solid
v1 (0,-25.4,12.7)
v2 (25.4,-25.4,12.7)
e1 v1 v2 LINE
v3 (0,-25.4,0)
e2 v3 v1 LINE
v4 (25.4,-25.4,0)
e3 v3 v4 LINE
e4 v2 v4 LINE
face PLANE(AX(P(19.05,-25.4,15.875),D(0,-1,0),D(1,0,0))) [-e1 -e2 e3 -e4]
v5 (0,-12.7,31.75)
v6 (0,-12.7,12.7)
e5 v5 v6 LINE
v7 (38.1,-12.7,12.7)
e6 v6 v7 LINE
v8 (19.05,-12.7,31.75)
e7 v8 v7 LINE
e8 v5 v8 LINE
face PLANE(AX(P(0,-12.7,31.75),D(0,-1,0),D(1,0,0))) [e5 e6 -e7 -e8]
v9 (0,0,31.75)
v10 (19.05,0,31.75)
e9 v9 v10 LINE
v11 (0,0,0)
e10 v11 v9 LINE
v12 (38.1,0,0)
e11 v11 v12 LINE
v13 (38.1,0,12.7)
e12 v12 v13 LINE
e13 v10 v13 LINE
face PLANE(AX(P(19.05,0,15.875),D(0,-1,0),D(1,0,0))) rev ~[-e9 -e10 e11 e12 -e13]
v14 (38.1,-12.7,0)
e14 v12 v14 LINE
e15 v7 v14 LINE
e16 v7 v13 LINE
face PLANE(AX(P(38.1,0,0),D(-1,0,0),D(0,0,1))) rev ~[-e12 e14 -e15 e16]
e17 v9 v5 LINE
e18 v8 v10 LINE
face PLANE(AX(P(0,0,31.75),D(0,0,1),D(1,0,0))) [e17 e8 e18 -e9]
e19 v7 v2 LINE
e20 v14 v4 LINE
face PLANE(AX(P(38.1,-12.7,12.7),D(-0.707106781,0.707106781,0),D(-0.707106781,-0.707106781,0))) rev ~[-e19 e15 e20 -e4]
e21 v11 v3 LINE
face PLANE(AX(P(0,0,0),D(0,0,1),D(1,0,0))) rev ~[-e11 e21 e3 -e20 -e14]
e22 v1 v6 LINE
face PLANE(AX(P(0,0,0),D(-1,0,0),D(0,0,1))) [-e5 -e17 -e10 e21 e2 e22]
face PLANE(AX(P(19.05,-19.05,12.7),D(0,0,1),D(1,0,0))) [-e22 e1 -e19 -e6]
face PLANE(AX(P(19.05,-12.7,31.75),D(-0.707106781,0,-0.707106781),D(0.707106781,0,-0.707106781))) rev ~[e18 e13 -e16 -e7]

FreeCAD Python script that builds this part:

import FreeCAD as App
import Part
import Sketcher

V = App.Vector
Q = App.Units.Quantity


def add_polygon(sketch, points):
    """Adds a closed chain of lines whose ends are joined by coincident constraints."""
    first, n = sketch.GeometryCount, len(points)
    for a, b in zip(points, points[1:] + points[:1]):
        sketch.addGeometry(Part.LineSegment(App.Vector(*a, 0), App.Vector(*b, 0)), False)
    for i in range(n):
        sketch.addConstraint(Sketcher.Constraint("Coincident", first + i, 2, first + (i + 1) % n, 1))

doc = App.newDocument("Part")
body = doc.addObject("PartDesign::Body", "Body")

sketch1 = doc.addObject("Sketcher::SketchObject", "Sketch")
body.addObject(sketch1)
sketch1.AttachmentSupport = (doc.XZ_Plane, [""])
sketch1.MapMode = "FlatFace"
add_polygon(sketch1, [(0, 32), (0, 0), (38, 0), (38, 32)])
sketch1.addConstraint([
    Sketcher.Constraint("Vertical", 0),
    Sketcher.Constraint("Horizontal", 1),
    Sketcher.Constraint("Vertical", 2),
    Sketcher.Constraint("Horizontal", 3),
    Sketcher.Constraint("Coincident", 0, 2, -1, 1),
    Sketcher.Constraint("DistanceX", 1, 1, 1, 2, Q("1.5 in")),
    Sketcher.Constraint("DistanceY", 0, 2, 0, 1, Q("1.25 in")),
])
pad1 = doc.addObject("PartDesign::Pad", "Pad")
body.addObject(pad1)
pad1.Profile = sketch1
pad1.Length = Q("1 in")

sketch2 = doc.addObject("Sketcher::SketchObject", "Sketch001")
body.addObject(sketch2)
sketch2.AttachmentSupport = (doc.XY_Plane, [""])
sketch2.MapMode = "FlatFace"
sketch2.AttachmentOffset = App.Placement(V(0, 0, 1.25 * 25.4), App.Rotation())
add_polygon(sketch2, [(0, -13), (0, -25), (38, -25), (38, -13)])
sketch2.addConstraint([
    Sketcher.Constraint("Vertical", 0),
    Sketcher.Constraint("Horizontal", 1),
    Sketcher.Constraint("Vertical", 2),
    Sketcher.Constraint("Horizontal", 3),
    Sketcher.Constraint("PointOnObject", 0, 2, -2),
    Sketcher.Constraint("DistanceX", 1, 1, 1, 2, Q("1.5 in")),
    Sketcher.Constraint("DistanceY", 0, 2, 0, 1, Q("0.5 in")),
    Sketcher.Constraint("DistanceY", 0, 2, -1, 1, Q("1 in")),
])
pocket1 = doc.addObject("PartDesign::Pocket", "Pocket")
body.addObject(pocket1)
pocket1.Profile = sketch2
pocket1.Length = Q("0.75 in")

sketch3 = doc.addObject("Sketcher::SketchObject", "Sketch002")
body.addObject(sketch3)
sketch3.AttachmentSupport = (doc.XZ_Plane, [""])
sketch3.MapMode = "FlatFace"
sketch3.AttachmentOffset = App.Placement(V(0, 0, 0.5 * 25.4), App.Rotation())
add_polygon(sketch3, [(38, 32), (19, 32), (38, 13)])
sketch3.addConstraint([
    Sketcher.Constraint("Horizontal", 0),
    Sketcher.Constraint("Vertical", 2),
    Sketcher.Constraint("Equal", 0, 2),
    Sketcher.Constraint("DistanceX", 0, 2, 0, 1, Q("0.75 in")),
    Sketcher.Constraint("DistanceX", -1, 1, 1, 2, Q("1.5 in")),
    Sketcher.Constraint("DistanceY", -1, 1, 1, 2, Q("0.5 in")),
])
pocket2 = doc.addObject("PartDesign::Pocket", "Pocket001")
body.addObject(pocket2)
pocket2.Profile = sketch3
pocket2.Length = Q("0.5 in")

sketch4 = doc.addObject("Sketcher::SketchObject", "Sketch003")
body.addObject(sketch4)
sketch4.AttachmentSupport = (doc.XY_Plane, [""])
sketch4.MapMode = "FlatFace"
sketch4.AttachmentOffset = App.Placement(V(0, 0, 0.5 * 25.4), App.Rotation())
add_polygon(sketch4, [(25, -25), (38, -25), (38, -13)])
sketch4.addConstraint([
    Sketcher.Constraint("Horizontal", 0),
    Sketcher.Constraint("Vertical", 1),
    Sketcher.Constraint("Equal", 0, 1),
    Sketcher.Constraint("DistanceX", 0, 1, 0, 2, Q("0.5 in")),
    Sketcher.Constraint("DistanceY", 0, 2, -1, 1, Q("1 in")),
    Sketcher.Constraint("DistanceX", -1, 1, 2, 2, Q("1 in")),
])
pocket3 = doc.addObject("PartDesign::Pocket", "Pocket002")
body.addObject(pocket3)
pocket3.Profile = sketch4
pocket3.Length = Q("0.5 in")

doc.recompute()
